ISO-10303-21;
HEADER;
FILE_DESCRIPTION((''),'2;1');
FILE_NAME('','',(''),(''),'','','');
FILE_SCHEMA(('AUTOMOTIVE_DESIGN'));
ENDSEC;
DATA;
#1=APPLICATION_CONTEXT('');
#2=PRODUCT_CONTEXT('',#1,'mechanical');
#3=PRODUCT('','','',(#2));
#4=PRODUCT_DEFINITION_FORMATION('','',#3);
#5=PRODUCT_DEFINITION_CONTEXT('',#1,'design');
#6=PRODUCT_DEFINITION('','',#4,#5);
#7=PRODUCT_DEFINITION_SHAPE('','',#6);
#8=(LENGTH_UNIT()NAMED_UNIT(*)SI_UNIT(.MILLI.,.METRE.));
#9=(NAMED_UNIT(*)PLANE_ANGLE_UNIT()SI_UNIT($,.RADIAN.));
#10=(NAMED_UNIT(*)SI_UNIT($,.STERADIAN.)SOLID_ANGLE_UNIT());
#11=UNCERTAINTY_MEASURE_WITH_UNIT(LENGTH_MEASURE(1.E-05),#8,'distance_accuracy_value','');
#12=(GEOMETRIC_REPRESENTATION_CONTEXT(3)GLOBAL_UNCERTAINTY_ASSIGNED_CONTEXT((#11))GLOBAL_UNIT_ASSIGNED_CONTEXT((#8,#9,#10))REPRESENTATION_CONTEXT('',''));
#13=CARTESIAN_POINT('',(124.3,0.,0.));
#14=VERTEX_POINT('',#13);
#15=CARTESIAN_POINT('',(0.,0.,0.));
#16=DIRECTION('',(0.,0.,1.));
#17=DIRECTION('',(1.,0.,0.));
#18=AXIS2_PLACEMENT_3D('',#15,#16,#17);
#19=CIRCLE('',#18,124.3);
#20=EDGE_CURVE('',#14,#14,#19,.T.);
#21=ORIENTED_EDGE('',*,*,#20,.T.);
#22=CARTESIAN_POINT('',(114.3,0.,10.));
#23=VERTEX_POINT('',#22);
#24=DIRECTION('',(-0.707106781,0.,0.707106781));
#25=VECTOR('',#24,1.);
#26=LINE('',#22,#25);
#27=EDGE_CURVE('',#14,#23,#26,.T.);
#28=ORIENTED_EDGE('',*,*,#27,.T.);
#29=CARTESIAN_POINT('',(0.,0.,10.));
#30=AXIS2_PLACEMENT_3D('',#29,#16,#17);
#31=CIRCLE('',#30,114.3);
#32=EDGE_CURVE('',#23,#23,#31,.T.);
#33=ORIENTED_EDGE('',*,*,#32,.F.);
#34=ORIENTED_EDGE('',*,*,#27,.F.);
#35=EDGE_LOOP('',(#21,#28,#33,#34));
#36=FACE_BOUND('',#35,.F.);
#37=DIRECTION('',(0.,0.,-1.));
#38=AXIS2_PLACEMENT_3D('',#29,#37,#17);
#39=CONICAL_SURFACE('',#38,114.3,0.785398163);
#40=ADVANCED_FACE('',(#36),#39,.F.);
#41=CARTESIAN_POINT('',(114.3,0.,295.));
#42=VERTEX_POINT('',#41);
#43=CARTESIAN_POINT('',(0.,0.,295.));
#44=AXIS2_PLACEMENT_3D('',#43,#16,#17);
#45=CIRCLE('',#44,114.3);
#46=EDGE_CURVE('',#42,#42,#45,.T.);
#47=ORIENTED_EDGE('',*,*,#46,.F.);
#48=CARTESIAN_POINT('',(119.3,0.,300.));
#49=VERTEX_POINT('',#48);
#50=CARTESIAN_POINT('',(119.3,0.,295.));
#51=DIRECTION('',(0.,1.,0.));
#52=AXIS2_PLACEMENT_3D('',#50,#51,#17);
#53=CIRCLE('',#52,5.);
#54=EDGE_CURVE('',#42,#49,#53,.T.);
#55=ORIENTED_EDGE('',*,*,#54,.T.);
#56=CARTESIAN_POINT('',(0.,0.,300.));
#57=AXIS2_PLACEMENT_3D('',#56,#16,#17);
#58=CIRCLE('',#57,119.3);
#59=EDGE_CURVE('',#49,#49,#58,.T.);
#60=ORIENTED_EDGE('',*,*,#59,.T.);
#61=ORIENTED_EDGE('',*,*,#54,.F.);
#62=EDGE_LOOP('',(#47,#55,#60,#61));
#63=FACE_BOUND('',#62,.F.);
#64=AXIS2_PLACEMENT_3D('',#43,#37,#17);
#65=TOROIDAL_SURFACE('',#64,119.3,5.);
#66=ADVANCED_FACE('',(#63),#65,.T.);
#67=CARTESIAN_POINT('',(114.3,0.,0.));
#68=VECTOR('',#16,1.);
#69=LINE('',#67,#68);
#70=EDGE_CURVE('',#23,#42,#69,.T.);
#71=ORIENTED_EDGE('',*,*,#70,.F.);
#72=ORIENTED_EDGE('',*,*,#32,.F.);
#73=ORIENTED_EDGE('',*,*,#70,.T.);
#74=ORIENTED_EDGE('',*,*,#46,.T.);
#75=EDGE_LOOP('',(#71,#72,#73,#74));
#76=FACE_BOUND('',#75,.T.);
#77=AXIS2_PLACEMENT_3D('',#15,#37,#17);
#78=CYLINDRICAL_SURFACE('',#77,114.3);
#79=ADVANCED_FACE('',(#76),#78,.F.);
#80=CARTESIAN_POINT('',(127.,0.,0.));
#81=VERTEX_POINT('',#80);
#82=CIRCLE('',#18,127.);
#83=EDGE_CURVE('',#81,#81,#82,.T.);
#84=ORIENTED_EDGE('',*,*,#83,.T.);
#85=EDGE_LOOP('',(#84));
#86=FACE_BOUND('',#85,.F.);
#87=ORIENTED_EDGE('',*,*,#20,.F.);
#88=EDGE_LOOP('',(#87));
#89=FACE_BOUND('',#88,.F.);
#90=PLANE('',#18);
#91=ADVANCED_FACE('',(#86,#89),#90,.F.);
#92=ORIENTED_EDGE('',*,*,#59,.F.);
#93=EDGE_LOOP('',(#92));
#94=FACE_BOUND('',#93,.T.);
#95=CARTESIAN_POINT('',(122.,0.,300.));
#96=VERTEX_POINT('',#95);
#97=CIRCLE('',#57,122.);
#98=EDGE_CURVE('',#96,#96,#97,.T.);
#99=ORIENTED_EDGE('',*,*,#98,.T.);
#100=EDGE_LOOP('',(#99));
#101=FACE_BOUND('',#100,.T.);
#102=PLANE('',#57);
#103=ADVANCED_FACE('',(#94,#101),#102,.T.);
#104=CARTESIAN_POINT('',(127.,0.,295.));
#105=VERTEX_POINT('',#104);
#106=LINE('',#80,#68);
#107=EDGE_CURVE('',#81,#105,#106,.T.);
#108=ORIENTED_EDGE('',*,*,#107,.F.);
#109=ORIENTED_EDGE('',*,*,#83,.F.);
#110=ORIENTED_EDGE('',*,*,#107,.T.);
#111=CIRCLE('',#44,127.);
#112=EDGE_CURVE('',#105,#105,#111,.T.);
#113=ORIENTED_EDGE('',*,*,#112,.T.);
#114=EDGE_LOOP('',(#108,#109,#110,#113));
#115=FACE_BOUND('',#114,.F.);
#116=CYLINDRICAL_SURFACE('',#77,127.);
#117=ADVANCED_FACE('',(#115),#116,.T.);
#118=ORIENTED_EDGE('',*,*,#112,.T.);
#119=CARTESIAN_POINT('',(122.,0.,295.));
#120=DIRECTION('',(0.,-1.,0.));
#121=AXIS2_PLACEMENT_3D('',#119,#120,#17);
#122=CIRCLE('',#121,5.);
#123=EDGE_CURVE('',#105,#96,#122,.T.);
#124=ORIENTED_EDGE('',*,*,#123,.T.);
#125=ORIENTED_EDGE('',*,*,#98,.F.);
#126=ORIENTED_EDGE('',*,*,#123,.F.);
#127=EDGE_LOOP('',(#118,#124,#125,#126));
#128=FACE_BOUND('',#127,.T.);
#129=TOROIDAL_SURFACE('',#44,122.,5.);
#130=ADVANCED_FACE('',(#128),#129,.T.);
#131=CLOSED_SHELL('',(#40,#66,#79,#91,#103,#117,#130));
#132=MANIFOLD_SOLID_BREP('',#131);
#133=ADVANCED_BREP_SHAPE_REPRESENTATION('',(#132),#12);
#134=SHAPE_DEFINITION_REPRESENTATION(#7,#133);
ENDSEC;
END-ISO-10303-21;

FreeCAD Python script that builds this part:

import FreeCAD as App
import Part
import Sketcher

V = App.Vector
Q = App.Units.Quantity


def edges_at(feature, points):
    """Names of the edges that pass closest to the given points."""
    edges = feature.Shape.Edges
    near = lambda p: min(range(len(edges)), key=lambda i: edges[i].distToShape(Part.Vertex(*p))[0])
    return sorted({f"Edge{near(p) + 1}" for p in points})

doc = App.newDocument("Part")
body = doc.addObject("PartDesign::Body", "Body")

# Sketch on XY plane
sketch1 = body.newObject("Sketcher::SketchObject", "Sketch")
sketch1.AttachmentSupport = (doc.getObject("XY_Plane"), [""])
sketch1.MapMode = "FlatFace"
sketch1.addGeometry([
    Part.Circle(V(0, 0, 0), V(0, 0, 1), 127),
    Part.Circle(V(0, 0, 0), V(0, 0, 1), 114),
], False)
sketch1.addConstraint([
    Sketcher.Constraint("Coincident", 0, 3, -1, 1),
    Sketcher.Constraint("Coincident", 1, 3, -1, 1),
    Sketcher.Constraint("Diameter", 0, Q("254 mm")),
    Sketcher.Constraint("Diameter", 1, Q("228.6 mm")),
])
pad1 = body.newObject("PartDesign::Pad", "Pad")
pad1.Profile = sketch1
pad1.Length = 300
doc.recompute()

fillet = body.newObject("PartDesign::Fillet", "Fillet")
fillet.Base = (pad1, edges_at(pad1, [(-127, 0, 300), (-114.3, 0, 300)]))
fillet.Radius = 5
doc.recompute()

chamfer = body.newObject("PartDesign::Chamfer", "Chamfer")
chamfer.Base = (fillet, edges_at(fillet, [(-114.3, 0, 0)]))
chamfer.Size = 10

doc.recompute()
